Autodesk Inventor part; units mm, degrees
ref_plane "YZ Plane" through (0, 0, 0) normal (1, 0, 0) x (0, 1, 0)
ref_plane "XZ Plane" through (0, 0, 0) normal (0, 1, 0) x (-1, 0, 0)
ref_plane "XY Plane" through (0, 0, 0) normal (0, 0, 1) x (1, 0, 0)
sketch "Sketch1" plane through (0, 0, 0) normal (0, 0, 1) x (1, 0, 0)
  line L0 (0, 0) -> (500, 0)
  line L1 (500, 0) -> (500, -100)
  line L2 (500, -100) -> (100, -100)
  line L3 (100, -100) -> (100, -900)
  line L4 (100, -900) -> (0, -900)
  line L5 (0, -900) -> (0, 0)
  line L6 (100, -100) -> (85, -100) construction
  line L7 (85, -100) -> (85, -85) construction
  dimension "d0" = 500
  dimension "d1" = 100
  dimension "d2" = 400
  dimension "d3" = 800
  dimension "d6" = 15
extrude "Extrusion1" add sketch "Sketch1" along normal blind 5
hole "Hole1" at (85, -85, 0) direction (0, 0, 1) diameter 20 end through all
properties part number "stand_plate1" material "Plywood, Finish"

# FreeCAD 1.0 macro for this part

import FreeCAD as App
import Part
import Sketcher

V = App.Vector

doc = App.newDocument("Part")
body = doc.addObject("PartDesign::Body", "Body")

# Sketch on XY plane
sketch1 = body.newObject("Sketcher::SketchObject", "Sketch")
sketch1.AttachmentSupport = (doc.getObject("XY_Plane"), [""])
sketch1.MapMode = "FlatFace"
sketch1.addGeometry([
    Part.LineSegment(V(500, 0, 0), V(0, 0, 0)),  # 0
    Part.LineSegment(V(0, 0, 0), V(0, -900, 0)),  # 1
    Part.LineSegment(V(0, -900, 0), V(100, -900, 0)),  # 2
    Part.LineSegment(V(100, -900, 0), V(100, -100, 0)),  # 3
    Part.LineSegment(V(100, -100, 0), V(500, -100, 0)),  # 4
    Part.LineSegment(V(500, -100, 0), V(500, 0, 0)),  # 5
], False)
sketch1.addConstraint([
    Sketcher.Constraint("Coincident", 0, 2, 1, 1),
    Sketcher.Constraint("Coincident", 1, 2, 2, 1),
    Sketcher.Constraint("Coincident", 2, 2, 3, 1),
    Sketcher.Constraint("Coincident", 3, 2, 4, 1),
    Sketcher.Constraint("Coincident", 4, 2, 5, 1),
    Sketcher.Constraint("Coincident", 5, 2, 0, 1),
    Sketcher.Constraint("Horizontal", 0),
    Sketcher.Constraint("Vertical", 1),
    Sketcher.Constraint("Horizontal", 2),
    Sketcher.Constraint("Vertical", 3),
    Sketcher.Constraint("Horizontal", 4),
    Sketcher.Constraint("Vertical", 5),
    Sketcher.Constraint("Coincident", 0, 2, -1, 1),
    Sketcher.Constraint("Equal", 2, 5),
    Sketcher.Constraint("DistanceX", 0, 2, 0, 1, 500.0),
    Sketcher.Constraint("DistanceX", 2, 1, 2, 2, 100.0),
    Sketcher.Constraint("DistanceY", 3, 1, 3, 2, 800.0),
])
pad1 = body.newObject("PartDesign::Pad", "Pad")
pad1.Profile = sketch1
pad1.Length = 5

# Sketch on XY plane
sketch2 = body.newObject("Sketcher::SketchObject", "Sketch001")
sketch2.AttachmentSupport = (doc.getObject("XY_Plane"), [""])
sketch2.MapMode = "FlatFace"
sketch2.addGeometry(Part.Circle(V(85, -85, 0), V(0, 0, 1), 10), False)
sketch2.addConstraint([
    Sketcher.Constraint("Diameter", 0, 20.0),
    Sketcher.Constraint("DistanceX", -1, 1, 0, 3, 85.0),
    Sketcher.Constraint("DistanceY", 0, 3, -1, 1, 85.0),
])
doc.recompute()
hole = body.newObject("PartDesign::Hole", "Hole")
hole.Profile = sketch2
hole.ThreadType = "None"
hole.Diameter = 20
hole.DepthType = "ThroughAll"
hole.Reversed = True

doc.recompute()
